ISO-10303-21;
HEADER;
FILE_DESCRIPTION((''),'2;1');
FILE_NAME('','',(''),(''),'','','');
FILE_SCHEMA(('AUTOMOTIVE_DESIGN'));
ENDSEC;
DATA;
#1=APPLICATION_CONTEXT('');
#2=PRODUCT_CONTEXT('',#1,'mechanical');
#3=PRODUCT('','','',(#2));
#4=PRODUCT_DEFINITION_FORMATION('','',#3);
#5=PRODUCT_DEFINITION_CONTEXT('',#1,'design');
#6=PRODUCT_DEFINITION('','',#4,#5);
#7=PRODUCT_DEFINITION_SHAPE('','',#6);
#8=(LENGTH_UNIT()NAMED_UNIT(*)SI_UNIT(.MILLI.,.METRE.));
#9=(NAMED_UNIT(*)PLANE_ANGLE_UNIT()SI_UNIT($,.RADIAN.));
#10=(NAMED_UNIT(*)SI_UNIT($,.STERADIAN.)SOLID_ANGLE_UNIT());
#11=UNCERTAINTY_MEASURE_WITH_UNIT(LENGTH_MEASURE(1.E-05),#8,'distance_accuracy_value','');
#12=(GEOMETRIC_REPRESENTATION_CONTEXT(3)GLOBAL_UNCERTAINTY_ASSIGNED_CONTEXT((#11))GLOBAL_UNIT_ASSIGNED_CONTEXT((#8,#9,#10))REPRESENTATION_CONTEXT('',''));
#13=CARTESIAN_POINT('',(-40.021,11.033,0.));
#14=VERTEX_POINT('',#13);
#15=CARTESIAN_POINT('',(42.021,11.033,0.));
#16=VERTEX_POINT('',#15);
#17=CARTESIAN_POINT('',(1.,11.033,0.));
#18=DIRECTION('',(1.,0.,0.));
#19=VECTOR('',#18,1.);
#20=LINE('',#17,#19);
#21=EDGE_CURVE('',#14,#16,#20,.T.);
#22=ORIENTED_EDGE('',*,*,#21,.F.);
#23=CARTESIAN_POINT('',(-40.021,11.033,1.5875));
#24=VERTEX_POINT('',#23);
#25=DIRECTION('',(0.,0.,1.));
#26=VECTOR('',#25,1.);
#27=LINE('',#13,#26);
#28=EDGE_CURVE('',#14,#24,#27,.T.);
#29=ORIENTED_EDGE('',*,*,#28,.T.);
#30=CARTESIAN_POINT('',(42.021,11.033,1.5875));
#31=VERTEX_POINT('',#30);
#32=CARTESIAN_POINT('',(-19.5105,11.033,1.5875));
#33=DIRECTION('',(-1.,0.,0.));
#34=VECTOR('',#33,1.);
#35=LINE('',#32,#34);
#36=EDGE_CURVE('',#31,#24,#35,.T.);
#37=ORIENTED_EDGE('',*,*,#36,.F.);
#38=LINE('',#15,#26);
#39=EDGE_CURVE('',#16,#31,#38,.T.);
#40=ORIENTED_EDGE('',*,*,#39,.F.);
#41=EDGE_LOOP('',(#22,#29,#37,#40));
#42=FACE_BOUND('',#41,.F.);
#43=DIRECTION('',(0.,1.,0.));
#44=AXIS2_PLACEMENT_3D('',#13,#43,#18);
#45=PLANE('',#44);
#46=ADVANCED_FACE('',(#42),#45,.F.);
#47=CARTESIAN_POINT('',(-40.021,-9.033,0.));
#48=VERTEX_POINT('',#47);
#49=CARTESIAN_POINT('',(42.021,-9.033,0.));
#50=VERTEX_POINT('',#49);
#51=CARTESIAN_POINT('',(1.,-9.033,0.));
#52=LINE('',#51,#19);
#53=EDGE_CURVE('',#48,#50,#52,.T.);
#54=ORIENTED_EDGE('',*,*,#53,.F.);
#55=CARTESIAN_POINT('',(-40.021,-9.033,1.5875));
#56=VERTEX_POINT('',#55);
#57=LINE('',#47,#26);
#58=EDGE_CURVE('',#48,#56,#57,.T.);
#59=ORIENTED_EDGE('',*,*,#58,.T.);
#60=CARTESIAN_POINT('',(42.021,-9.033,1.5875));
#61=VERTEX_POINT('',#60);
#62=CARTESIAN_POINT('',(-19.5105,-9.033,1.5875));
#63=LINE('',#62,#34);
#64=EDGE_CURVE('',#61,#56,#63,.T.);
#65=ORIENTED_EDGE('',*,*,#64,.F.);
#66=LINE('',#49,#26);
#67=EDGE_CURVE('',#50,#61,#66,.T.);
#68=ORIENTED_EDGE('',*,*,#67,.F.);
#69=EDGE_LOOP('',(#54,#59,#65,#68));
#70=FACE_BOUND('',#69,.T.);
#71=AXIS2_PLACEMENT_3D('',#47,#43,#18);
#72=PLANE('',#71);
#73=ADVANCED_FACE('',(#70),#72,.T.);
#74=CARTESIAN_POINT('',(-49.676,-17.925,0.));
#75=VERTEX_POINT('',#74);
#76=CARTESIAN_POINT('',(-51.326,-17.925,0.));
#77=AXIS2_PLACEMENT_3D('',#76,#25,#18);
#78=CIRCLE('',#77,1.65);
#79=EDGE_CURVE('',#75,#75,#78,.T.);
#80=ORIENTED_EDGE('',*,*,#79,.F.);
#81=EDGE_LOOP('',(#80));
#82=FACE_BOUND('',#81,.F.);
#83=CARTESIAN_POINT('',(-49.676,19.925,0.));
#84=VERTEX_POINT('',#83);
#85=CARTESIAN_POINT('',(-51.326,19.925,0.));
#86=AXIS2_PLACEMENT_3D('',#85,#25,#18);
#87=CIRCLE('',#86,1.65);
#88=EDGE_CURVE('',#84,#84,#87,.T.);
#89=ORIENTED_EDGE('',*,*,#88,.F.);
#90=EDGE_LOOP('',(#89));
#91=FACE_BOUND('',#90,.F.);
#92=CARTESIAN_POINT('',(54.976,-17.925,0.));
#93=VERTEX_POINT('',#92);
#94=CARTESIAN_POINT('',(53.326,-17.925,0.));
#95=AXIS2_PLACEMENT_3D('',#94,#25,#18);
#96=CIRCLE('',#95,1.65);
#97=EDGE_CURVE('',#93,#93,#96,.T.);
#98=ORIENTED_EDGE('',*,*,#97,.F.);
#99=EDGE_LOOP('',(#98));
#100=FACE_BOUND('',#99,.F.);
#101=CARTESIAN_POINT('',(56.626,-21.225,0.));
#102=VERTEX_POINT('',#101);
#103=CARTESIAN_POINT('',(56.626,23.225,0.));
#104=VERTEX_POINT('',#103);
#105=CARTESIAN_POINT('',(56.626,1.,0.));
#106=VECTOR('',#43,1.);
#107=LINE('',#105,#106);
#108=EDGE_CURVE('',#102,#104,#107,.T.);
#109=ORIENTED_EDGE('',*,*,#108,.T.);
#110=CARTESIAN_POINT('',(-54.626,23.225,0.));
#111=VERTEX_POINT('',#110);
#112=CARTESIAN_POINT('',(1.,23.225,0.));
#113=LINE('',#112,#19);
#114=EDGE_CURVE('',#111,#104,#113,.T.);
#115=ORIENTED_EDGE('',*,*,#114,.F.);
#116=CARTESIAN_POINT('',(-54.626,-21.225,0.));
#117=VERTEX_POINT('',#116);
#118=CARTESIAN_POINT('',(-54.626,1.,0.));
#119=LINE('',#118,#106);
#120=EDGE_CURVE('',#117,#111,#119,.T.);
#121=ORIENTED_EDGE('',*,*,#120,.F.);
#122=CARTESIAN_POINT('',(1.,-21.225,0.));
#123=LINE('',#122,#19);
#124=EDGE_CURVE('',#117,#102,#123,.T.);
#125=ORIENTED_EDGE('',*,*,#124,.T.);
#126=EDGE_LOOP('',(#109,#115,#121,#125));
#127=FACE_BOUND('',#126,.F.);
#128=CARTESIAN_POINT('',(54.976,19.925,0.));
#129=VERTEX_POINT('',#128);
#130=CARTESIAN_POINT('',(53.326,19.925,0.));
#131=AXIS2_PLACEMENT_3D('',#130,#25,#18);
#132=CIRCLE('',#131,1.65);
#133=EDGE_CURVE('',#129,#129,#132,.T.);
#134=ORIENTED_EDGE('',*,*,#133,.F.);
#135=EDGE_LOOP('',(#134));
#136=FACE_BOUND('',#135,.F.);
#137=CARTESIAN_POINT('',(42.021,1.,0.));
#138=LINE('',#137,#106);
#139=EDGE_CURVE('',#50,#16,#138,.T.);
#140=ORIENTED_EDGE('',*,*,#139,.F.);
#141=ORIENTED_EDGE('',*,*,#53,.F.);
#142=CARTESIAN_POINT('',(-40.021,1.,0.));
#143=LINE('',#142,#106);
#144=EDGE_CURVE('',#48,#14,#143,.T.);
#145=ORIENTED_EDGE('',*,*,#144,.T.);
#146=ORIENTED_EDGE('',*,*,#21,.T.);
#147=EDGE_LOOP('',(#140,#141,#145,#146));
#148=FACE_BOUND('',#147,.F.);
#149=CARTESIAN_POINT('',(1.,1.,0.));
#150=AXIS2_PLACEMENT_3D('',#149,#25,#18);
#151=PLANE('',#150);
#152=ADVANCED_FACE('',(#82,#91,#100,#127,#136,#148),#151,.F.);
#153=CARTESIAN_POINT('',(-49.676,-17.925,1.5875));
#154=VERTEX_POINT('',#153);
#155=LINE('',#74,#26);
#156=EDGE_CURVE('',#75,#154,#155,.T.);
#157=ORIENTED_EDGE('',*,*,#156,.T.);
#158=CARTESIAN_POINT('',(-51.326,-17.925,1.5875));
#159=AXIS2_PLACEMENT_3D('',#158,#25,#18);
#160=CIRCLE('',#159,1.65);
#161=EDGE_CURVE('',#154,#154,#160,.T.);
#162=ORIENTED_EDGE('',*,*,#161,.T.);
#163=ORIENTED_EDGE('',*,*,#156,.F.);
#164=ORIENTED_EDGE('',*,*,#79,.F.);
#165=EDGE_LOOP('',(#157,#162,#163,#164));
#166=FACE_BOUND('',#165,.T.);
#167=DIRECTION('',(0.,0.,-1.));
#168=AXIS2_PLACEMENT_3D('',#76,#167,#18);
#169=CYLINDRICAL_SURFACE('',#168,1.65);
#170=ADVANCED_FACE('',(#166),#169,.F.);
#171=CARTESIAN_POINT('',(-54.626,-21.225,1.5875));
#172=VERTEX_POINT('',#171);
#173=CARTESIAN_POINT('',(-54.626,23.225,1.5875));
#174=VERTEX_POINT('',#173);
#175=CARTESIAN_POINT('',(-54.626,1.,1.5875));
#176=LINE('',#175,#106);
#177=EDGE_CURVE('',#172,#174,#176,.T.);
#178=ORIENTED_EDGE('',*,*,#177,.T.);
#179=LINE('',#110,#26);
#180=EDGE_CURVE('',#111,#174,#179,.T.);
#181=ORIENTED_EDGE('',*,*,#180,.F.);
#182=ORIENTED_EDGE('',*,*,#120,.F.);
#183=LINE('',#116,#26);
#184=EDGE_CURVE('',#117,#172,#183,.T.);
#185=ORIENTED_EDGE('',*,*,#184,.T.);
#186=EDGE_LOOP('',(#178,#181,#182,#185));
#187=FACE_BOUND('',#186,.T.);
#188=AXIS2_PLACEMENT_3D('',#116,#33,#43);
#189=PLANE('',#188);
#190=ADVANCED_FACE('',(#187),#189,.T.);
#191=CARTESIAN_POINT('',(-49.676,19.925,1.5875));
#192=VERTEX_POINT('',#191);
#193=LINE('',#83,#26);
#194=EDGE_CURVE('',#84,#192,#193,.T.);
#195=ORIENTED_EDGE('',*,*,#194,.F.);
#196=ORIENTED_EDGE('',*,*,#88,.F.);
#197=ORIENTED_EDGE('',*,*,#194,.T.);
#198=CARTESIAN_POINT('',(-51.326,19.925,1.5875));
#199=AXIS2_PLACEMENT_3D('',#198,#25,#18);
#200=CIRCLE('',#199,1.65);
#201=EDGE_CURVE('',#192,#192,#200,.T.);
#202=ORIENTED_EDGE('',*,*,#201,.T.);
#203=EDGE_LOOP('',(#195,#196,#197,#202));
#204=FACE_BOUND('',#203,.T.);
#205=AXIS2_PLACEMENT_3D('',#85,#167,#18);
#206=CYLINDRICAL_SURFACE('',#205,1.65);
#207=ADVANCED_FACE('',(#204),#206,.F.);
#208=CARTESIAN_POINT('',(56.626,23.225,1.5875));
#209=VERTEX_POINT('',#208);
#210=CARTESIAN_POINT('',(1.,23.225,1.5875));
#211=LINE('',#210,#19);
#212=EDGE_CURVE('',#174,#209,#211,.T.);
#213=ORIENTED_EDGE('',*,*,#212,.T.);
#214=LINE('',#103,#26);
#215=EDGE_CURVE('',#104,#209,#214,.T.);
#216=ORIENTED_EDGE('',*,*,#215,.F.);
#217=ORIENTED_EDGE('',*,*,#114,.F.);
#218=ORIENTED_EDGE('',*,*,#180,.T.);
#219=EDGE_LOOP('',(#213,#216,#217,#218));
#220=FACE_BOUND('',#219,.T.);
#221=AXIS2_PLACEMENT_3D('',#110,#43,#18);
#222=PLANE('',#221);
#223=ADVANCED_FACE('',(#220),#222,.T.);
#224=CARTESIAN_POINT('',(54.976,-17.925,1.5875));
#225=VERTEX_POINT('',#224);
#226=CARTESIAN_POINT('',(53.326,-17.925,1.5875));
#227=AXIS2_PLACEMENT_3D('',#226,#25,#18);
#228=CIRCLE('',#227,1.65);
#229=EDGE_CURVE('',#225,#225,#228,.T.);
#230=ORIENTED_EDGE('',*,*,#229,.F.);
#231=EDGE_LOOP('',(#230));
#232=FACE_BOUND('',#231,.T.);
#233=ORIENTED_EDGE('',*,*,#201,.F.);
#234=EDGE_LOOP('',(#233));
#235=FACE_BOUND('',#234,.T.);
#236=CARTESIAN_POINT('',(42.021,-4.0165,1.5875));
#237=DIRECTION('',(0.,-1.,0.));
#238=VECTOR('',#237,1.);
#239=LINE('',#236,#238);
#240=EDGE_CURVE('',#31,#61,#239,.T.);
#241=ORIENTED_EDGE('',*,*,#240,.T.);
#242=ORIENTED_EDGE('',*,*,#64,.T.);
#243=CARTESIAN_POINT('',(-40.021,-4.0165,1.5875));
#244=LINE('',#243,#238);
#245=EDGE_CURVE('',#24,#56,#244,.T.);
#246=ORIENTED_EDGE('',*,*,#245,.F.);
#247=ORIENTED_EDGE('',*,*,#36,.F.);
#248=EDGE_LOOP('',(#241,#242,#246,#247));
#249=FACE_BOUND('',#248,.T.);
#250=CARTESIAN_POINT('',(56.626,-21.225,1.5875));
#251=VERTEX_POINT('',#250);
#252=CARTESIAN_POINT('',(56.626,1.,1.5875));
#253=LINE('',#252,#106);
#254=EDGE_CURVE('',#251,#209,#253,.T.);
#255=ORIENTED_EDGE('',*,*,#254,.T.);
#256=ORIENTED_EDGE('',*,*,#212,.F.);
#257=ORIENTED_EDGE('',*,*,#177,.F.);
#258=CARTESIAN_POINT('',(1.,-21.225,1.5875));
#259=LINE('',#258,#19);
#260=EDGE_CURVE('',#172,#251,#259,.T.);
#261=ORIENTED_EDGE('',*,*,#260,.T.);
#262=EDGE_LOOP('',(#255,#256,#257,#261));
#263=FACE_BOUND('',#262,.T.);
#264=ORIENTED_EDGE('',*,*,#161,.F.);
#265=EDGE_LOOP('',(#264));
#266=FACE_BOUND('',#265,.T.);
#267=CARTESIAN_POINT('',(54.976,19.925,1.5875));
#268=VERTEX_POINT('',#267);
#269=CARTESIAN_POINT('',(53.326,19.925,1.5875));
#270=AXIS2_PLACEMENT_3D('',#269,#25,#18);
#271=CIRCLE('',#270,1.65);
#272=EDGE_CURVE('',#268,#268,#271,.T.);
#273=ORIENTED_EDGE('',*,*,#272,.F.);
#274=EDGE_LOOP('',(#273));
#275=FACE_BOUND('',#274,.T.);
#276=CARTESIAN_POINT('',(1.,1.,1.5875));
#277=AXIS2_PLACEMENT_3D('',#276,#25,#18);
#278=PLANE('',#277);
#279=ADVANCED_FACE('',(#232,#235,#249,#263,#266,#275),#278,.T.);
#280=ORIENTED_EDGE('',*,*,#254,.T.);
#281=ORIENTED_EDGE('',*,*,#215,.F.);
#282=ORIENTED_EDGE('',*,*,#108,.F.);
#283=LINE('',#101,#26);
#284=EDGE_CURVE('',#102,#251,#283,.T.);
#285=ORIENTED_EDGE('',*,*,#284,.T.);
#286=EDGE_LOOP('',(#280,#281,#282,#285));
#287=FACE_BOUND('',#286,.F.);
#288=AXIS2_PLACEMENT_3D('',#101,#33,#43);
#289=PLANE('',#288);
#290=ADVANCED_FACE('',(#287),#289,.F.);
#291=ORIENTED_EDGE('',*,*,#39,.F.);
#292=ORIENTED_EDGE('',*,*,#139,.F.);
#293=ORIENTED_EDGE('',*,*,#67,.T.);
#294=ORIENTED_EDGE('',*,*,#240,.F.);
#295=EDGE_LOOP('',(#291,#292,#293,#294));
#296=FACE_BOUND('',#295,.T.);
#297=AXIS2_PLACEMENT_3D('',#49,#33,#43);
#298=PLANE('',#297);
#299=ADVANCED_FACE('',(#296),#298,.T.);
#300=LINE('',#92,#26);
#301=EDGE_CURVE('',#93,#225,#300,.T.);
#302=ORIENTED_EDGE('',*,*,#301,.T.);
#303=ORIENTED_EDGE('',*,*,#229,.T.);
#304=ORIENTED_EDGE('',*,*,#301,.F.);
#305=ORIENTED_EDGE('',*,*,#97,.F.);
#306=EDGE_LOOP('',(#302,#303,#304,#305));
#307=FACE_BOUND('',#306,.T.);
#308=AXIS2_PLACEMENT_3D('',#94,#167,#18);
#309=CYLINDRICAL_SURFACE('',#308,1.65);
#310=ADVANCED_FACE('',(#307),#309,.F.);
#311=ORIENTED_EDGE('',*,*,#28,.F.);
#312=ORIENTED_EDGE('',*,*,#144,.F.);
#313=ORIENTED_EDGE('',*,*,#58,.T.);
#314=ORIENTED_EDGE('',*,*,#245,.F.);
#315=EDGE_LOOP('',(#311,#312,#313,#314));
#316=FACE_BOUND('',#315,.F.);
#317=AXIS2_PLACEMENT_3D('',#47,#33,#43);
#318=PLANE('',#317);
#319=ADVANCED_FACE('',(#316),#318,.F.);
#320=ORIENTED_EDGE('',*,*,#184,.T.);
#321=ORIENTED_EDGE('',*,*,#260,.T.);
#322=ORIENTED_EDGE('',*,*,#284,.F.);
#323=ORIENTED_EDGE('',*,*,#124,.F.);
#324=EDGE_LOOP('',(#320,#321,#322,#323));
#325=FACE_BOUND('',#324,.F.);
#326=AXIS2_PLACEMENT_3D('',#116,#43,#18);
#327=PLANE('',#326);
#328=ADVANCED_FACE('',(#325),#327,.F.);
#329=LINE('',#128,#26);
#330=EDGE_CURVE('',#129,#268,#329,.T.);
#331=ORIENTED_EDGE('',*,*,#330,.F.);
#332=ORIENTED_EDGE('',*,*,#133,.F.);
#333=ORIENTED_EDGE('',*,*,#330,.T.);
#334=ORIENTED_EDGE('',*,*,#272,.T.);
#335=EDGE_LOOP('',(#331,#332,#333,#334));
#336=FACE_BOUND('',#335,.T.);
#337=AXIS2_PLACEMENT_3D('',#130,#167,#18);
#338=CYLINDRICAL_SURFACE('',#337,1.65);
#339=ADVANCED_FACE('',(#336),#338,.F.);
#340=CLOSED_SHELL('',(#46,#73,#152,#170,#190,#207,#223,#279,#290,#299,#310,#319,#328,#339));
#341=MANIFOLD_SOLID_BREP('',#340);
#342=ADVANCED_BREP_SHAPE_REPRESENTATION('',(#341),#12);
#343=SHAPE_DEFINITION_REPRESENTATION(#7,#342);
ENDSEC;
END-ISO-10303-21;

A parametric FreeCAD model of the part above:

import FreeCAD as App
import Part
import Sketcher
Q = App.Units.Quantity

doc = App.newDocument("Part")
body = doc.addObject("PartDesign::Body", "Body")

sketch1 = doc.addObject("Sketcher::SketchObject", "Sketch")
body.addObject(sketch1)
sketch1.AttachmentSupport = (doc.XY_Plane, [""])
sketch1.MapMode = "FlatFace"
sketch1.addGeometry(Part.LineSegment(App.Vector(-54.6, 23.2, 0), App.Vector(-54.6, -21.2, 0)), False)
sketch1.addGeometry(Part.LineSegment(App.Vector(-54.6, -21.2, 0), App.Vector(56.6, -21.2, 0)), False)
sketch1.addGeometry(Part.LineSegment(App.Vector(56.6, -21.2, 0), App.Vector(56.6, 23.2, 0)), False)
sketch1.addGeometry(Part.LineSegment(App.Vector(56.6, 23.2, 0), App.Vector(-54.6, 23.2, 0)), False)
sketch1.addGeometry(Part.Circle(App.Vector(-51.3, -17.9, 0), App.Vector(0, 0, 1), 1.6), False)
sketch1.addGeometry(Part.Circle(App.Vector(53.3, -17.9, 0), App.Vector(0, 0, 1), 1.6), False)
sketch1.addGeometry(Part.Circle(App.Vector(-51.3, 19.9, 0), App.Vector(0, 0, 1), 1.6), False)
sketch1.addGeometry(Part.Circle(App.Vector(53.3, 19.9, 0), App.Vector(0, 0, 1), 1.6), False)
sketch1.addConstraint(Sketcher.Constraint("Coincident", 0, 2, 1, 1))
sketch1.addConstraint(Sketcher.Constraint("Coincident", 1, 2, 2, 1))
sketch1.addConstraint(Sketcher.Constraint("Coincident", 2, 2, 3, 1))
sketch1.addConstraint(Sketcher.Constraint("Coincident", 3, 2, 0, 1))
sketch1.addConstraint(Sketcher.Constraint("Vertical", 0))
sketch1.addConstraint(Sketcher.Constraint("Horizontal", 1))
sketch1.addConstraint(Sketcher.Constraint("Vertical", 2))
sketch1.addConstraint(Sketcher.Constraint("Horizontal", 3))
sketch1.addConstraint(Sketcher.Constraint("Equal", 4, 5))
sketch1.addConstraint(Sketcher.Constraint("Equal", 5, 6))
sketch1.addConstraint(Sketcher.Constraint("Equal", 6, 7))
sketch1.addConstraint(Sketcher.Constraint("Horizontal", 4, 3, 5, 3))
sketch1.addConstraint(Sketcher.Constraint("Horizontal", 6, 3, 7, 3))
sketch1.addConstraint(Sketcher.Constraint("Vertical", 4, 3, 6, 3))
sketch1.addConstraint(Sketcher.Constraint("Vertical", 5, 3, 7, 3))
sketch1.addConstraint(Sketcher.Constraint("DistanceX", 1, 1, 1, 2, Q("4.38 in")))
sketch1.addConstraint(Sketcher.Constraint("DistanceY", 0, 2, 0, 1, Q("1.75 in")))
sketch1.addConstraint(Sketcher.Constraint("Diameter", 4, 3.3))
sketch1.addConstraint(Sketcher.Constraint("DistanceX", 4, 3, -1, 1, 51.326))
sketch1.addConstraint(Sketcher.Constraint("DistanceY", 4, 3, -1, 1, 17.925))
sketch1.addConstraint(Sketcher.Constraint("DistanceX", -1, 1, 5, 3, 53.326))
sketch1.addConstraint(Sketcher.Constraint("DistanceY", -1, 1, 6, 3, 19.925))
sketch1.addConstraint(Sketcher.Constraint("DistanceX", 0, 2, -1, 1, 54.626))
sketch1.addConstraint(Sketcher.Constraint("DistanceY", 0, 2, -1, 1, 21.225))
pad1 = doc.addObject("PartDesign::Pad", "Pad")
body.addObject(pad1)
pad1.Profile = sketch1
pad1.Length = Q("0.0625 in")

sketch2 = doc.addObject("Sketcher::SketchObject", "Sketch001")
body.addObject(sketch2)
sketch2.AttachmentSupport = (doc.XY_Plane, [""])
sketch2.MapMode = "FlatFace"
sketch2.addGeometry(Part.Circle(App.Vector(-51.3, 19.9, 0), App.Vector(0, 0, 1), 1.6), False)
sketch2.addGeometry(Part.LineSegment(App.Vector(-40, 11, 0), App.Vector(-40, -9, 0)), False)
sketch2.addGeometry(Part.LineSegment(App.Vector(-40, -9, 0), App.Vector(42, -9, 0)), False)
sketch2.addGeometry(Part.LineSegment(App.Vector(42, -9, 0), App.Vector(42, 11, 0)), False)
sketch2.addGeometry(Part.LineSegment(App.Vector(42, 11, 0), App.Vector(-40, 11, 0)), False)
sketch2.addConstraint(Sketcher.Constraint("Coincident", 1, 2, 2, 1))
sketch2.addConstraint(Sketcher.Constraint("Coincident", 2, 2, 3, 1))
sketch2.addConstraint(Sketcher.Constraint("Coincident", 3, 2, 4, 1))
sketch2.addConstraint(Sketcher.Constraint("Coincident", 4, 2, 1, 1))
sketch2.addConstraint(Sketcher.Constraint("Vertical", 1))
sketch2.addConstraint(Sketcher.Constraint("Horizontal", 2))
sketch2.addConstraint(Sketcher.Constraint("Vertical", 3))
sketch2.addConstraint(Sketcher.Constraint("Horizontal", 4))
sketch2.addConstraint(Sketcher.Constraint("DistanceX", 2, 1, 2, 2, Q("3.23 in")))
sketch2.addConstraint(Sketcher.Constraint("DistanceY", 1, 2, 1, 1, Q("0.79 in")))
sketch2.addConstraint(Sketcher.Constraint("Diameter", 0, 3.3))
sketch2.addConstraint(Sketcher.Constraint("DistanceX", 0, 3, -1, 1, 51.326))
sketch2.addConstraint(Sketcher.Constraint("DistanceY", -1, 1, 0, 3, 19.925))
sketch2.addConstraint(Sketcher.Constraint("DistanceX", 1, 2, -1, 1, 40.021))
sketch2.addConstraint(Sketcher.Constraint("DistanceY", 1, 2, -1, 1, 9.033))
pocket1 = doc.addObject("PartDesign::Pocket", "Pocket")
body.addObject(pocket1)
pocket1.Profile = sketch2
pocket1.Type = "ThroughAll"
pocket1.Reversed = True

doc.recompute()
